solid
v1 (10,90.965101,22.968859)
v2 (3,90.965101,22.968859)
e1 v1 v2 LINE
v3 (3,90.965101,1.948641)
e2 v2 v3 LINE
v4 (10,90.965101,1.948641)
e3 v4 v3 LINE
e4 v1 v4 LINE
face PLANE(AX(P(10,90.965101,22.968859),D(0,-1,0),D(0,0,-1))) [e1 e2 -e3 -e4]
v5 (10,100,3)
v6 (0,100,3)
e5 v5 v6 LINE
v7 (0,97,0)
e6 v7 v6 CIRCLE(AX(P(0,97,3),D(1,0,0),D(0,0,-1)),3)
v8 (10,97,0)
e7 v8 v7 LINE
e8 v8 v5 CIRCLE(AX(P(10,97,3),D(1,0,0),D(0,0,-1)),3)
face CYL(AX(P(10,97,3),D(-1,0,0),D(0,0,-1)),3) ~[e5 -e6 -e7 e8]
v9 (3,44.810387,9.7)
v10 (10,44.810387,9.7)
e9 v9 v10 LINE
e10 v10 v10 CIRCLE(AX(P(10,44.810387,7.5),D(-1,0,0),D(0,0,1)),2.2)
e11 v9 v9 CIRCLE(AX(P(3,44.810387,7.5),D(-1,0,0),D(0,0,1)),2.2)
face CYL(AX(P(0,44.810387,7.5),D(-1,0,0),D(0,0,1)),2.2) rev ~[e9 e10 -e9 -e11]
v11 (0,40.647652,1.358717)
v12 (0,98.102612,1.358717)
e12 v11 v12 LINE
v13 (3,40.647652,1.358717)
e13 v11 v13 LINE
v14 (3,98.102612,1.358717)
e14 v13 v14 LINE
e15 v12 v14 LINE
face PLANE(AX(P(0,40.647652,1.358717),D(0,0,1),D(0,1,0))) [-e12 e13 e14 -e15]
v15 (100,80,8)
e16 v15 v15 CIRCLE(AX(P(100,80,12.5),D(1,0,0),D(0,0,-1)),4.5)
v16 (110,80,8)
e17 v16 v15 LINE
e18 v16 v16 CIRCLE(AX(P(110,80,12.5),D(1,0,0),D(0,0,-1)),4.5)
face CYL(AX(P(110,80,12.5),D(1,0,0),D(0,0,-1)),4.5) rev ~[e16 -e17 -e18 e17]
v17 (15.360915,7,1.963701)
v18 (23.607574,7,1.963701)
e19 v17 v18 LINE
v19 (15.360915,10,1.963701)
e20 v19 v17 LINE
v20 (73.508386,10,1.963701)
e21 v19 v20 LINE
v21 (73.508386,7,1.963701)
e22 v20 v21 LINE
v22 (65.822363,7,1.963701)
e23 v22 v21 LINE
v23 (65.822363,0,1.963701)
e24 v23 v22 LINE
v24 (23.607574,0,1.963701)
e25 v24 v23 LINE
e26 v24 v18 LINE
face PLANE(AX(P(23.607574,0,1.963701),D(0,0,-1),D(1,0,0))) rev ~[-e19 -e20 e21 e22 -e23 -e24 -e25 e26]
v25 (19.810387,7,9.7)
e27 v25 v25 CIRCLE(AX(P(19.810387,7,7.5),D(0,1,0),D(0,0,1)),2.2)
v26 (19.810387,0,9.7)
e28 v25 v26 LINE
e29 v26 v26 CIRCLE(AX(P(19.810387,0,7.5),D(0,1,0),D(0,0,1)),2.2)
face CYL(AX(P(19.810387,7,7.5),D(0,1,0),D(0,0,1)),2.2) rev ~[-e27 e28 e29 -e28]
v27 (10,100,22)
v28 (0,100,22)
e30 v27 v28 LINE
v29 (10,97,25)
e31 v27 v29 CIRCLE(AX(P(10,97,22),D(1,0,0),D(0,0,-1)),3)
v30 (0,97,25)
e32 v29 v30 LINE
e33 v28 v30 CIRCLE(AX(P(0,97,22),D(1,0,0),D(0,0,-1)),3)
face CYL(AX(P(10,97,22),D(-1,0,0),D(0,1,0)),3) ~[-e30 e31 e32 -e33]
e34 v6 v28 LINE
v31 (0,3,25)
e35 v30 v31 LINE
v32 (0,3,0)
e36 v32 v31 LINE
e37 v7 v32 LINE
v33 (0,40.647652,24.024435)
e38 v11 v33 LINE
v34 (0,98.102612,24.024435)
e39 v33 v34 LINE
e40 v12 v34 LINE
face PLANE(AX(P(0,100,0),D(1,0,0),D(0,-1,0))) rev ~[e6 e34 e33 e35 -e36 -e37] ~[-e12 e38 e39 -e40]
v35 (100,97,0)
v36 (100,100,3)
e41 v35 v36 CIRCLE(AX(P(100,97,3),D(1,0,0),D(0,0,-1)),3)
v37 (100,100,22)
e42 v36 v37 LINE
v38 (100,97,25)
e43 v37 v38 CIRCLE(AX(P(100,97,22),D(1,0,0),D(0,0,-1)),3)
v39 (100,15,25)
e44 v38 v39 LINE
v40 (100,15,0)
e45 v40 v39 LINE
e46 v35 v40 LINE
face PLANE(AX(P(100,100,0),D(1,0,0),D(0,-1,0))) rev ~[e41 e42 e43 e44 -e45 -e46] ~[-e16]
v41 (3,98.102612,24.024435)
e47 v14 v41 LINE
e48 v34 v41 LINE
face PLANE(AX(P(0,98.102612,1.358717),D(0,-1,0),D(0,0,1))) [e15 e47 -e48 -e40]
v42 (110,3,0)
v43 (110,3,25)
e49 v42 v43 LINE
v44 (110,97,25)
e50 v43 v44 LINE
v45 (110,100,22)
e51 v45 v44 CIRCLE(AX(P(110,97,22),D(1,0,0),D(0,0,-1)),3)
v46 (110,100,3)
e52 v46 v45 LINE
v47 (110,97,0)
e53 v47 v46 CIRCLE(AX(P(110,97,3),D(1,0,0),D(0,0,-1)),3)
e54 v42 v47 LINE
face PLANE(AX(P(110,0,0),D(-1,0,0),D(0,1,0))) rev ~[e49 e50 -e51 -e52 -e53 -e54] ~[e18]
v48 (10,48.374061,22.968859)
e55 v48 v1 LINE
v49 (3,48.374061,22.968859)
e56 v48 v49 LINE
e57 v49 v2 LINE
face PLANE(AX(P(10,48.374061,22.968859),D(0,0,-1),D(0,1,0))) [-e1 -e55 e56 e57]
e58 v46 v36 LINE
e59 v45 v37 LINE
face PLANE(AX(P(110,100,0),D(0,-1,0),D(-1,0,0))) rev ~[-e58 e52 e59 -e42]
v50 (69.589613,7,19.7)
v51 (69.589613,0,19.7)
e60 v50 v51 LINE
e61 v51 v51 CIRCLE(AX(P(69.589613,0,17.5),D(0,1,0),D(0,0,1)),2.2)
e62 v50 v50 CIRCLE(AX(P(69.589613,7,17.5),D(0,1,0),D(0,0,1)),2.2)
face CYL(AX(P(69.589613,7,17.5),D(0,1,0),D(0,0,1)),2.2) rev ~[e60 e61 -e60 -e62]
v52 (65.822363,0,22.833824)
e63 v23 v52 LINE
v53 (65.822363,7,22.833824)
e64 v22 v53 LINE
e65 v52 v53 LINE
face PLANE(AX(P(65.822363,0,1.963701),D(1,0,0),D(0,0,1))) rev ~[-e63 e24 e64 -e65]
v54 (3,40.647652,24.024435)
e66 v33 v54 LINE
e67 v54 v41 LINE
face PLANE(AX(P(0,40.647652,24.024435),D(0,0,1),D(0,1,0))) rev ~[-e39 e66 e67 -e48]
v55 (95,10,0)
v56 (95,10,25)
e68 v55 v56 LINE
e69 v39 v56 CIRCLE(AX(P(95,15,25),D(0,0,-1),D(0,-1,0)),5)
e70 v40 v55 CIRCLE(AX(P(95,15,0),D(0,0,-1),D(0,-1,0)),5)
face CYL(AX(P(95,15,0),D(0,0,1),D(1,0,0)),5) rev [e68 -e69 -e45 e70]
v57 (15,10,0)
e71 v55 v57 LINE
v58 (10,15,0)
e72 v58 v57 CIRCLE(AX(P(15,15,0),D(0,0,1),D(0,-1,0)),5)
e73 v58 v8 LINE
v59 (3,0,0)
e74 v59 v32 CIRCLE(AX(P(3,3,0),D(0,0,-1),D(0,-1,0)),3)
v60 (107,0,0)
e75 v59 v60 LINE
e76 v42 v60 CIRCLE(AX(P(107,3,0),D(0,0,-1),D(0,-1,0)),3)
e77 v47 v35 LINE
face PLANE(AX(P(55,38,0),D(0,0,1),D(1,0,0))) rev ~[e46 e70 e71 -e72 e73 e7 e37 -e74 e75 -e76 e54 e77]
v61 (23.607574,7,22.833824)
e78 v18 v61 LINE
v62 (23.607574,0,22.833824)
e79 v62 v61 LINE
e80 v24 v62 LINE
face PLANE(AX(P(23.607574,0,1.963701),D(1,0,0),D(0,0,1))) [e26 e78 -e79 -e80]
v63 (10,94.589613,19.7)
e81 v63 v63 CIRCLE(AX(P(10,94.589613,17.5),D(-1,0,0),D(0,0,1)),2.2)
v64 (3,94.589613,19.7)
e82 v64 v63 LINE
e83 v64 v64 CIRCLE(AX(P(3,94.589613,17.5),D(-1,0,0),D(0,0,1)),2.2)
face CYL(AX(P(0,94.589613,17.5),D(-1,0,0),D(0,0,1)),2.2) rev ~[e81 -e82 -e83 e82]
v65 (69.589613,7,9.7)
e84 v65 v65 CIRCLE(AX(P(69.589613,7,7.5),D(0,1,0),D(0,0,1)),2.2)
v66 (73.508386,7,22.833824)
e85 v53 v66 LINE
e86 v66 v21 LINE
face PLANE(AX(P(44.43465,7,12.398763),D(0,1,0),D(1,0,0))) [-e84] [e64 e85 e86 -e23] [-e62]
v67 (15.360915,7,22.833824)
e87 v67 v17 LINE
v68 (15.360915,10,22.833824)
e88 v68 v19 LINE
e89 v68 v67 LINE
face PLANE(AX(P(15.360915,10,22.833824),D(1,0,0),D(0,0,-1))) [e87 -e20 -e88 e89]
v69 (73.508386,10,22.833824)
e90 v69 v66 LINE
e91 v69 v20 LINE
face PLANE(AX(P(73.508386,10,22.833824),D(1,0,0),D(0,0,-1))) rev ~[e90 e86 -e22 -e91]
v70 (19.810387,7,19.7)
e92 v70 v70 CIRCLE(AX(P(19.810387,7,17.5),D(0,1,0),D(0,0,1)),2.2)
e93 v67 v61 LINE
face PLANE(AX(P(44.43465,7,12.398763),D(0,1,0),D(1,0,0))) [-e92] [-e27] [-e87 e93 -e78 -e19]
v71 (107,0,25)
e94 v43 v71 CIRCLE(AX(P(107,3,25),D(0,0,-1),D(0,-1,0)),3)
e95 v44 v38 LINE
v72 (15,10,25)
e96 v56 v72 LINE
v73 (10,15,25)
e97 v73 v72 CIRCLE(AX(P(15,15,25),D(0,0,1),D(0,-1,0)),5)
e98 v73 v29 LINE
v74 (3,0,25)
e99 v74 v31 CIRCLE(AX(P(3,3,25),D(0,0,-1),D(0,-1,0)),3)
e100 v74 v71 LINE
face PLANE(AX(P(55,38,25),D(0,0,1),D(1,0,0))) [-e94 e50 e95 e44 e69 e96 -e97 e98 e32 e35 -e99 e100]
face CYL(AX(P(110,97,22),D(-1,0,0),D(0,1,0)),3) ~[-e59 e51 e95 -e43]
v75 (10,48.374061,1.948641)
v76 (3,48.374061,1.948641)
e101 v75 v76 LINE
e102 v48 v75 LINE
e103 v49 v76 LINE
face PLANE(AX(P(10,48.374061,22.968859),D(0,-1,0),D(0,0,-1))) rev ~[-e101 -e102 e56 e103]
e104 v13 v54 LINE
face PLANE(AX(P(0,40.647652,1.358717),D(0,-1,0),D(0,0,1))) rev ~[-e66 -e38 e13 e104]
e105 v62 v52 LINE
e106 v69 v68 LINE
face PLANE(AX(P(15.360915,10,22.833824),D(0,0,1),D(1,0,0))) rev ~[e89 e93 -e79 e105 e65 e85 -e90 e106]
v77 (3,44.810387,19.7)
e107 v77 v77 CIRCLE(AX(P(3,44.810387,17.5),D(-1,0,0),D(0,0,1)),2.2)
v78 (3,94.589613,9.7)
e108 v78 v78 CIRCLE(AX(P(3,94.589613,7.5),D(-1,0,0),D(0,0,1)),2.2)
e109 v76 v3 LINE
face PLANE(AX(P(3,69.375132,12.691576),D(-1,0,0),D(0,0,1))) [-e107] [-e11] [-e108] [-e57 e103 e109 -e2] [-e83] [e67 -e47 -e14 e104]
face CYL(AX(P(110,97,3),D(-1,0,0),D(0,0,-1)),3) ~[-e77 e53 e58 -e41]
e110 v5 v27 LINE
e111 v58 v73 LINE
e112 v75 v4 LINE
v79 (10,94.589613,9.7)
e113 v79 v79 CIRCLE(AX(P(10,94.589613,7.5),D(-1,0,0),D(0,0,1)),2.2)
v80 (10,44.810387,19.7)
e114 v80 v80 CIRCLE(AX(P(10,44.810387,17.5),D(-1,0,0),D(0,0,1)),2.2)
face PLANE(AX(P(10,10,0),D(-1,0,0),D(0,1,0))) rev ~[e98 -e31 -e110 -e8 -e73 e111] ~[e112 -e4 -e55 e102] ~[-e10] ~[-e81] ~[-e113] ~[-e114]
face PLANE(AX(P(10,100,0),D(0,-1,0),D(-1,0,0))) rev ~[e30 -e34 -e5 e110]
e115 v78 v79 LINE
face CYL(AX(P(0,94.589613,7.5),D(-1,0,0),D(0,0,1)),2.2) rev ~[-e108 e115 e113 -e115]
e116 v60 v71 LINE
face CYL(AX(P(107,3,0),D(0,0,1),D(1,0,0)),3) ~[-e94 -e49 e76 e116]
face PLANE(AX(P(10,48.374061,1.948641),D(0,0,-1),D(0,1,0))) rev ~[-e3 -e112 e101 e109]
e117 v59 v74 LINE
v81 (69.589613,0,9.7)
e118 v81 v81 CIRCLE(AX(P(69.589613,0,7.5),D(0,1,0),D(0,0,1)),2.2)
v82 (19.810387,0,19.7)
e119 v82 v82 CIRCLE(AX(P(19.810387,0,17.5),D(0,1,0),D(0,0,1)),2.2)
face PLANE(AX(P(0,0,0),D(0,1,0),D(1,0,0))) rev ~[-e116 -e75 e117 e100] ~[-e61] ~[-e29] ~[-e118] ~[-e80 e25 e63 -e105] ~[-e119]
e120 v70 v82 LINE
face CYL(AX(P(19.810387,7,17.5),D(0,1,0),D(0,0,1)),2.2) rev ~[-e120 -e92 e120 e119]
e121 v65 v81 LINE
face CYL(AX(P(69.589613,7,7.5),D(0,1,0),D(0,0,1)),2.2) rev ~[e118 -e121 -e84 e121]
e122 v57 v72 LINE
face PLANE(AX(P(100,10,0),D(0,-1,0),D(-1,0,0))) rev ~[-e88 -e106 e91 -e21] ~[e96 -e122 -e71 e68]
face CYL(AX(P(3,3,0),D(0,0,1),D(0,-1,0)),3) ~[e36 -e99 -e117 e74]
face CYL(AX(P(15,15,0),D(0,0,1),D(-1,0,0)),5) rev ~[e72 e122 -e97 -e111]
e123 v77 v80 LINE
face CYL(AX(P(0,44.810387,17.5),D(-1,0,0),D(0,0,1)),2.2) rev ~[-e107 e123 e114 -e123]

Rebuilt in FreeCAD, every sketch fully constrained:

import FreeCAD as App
import Part
import Sketcher

V = App.Vector


def edges_at(feature, points):
    """Names of the edges that pass closest to the given points."""
    edges = feature.Shape.Edges
    near = lambda p: min(range(len(edges)), key=lambda i: edges[i].distToShape(Part.Vertex(*p))[0])
    return sorted({f"Edge{near(p) + 1}" for p in points})


def add_polygon(sketch, points):
    """Adds a closed chain of lines whose ends are joined by coincident constraints."""
    first, n = sketch.GeometryCount, len(points)
    for a, b in zip(points, points[1:] + points[:1]):
        sketch.addGeometry(Part.LineSegment(App.Vector(*a, 0), App.Vector(*b, 0)), False)
    for i in range(n):
        sketch.addConstraint(Sketcher.Constraint("Coincident", first + i, 2, first + (i + 1) % n, 1))

doc = App.newDocument("Part")
body = doc.addObject("PartDesign::Body", "Body")

# Sketch on XY plane
sketch1 = body.newObject("Sketcher::SketchObject", "Sketch")
sketch1.AttachmentSupport = (doc.getObject("XY_Plane"), [""])
sketch1.MapMode = "FlatFace"
add_polygon(sketch1, [(0, 100), (0, 0), (110, 0), (110, 100), (100, 100), (100, 10), (10, 10), (10, 100)])  # lines 0-7
sketch1.addConstraint([
    Sketcher.Constraint("Vertical", 0),
    Sketcher.Constraint("Horizontal", 1),
    Sketcher.Constraint("Vertical", 2),
    Sketcher.Constraint("Horizontal", 3),
    Sketcher.Constraint("Vertical", 4),
    Sketcher.Constraint("Horizontal", 5),
    Sketcher.Constraint("Vertical", 6),
    Sketcher.Constraint("Horizontal", 7),
    Sketcher.Constraint("Coincident", 0, 2, -1, 1),
    Sketcher.Constraint("Horizontal", 3, 2, 6, 2),
    Sketcher.Constraint("Equal", 3, 7),
    Sketcher.Constraint("Equal", 5, 4),
    Sketcher.Constraint("DistanceX", 1, 1, 1, 2, 110.0),
    Sketcher.Constraint("DistanceX", 3, 2, 3, 1, 10.0),
    Sketcher.Constraint("DistanceY", 0, 2, 0, 1, 100.0),
])
pad1 = body.newObject("PartDesign::Pad", "Pad")
pad1.Profile = sketch1
pad1.Length = 25

# Sketch on YZ plane
sketch2 = body.newObject("Sketcher::SketchObject", "Sketch001")
sketch2.AttachmentSupport = (doc.getObject("YZ_Plane"), [""])
sketch2.MapMode = "FlatFace"
sketch2.addGeometry([
    Part.Circle(V(94.6, 7.5, 0), V(0, 0, 1), 2.2),
    Part.Circle(V(94.6, 17.5, 0), V(0, 0, 1), 2.2),
    Part.Circle(V(44.8, 7.5, 0), V(0, 0, 1), 2.2),
    Part.Circle(V(44.8, 17.5, 0), V(0, 0, 1), 2.2),
], False)
sketch2.addConstraint([
    Sketcher.Constraint("Equal", 0, 1),
    Sketcher.Constraint("Equal", 1, 2),
    Sketcher.Constraint("Equal", 2, 3),
    Sketcher.Constraint("Horizontal", 0, 3, 2, 3),
    Sketcher.Constraint("Horizontal", 1, 3, 3, 3),
    Sketcher.Constraint("Vertical", 0, 3, 1, 3),
    Sketcher.Constraint("Vertical", 2, 3, 3, 3),
    Sketcher.Constraint("Diameter", 0, 4.4),
    Sketcher.Constraint("DistanceY", 0, 3, 1, 3, 10.0),
    Sketcher.Constraint("DistanceY", -1, 1, 0, 3, 7.5),
    Sketcher.Constraint("DistanceX", -1, 1, 0, 3, 94.589613),
    Sketcher.Constraint("DistanceX", -1, 1, 2, 3, 44.810387),
])
pocket1 = body.newObject("PartDesign::Pocket", "Pocket")
pocket1.Profile = sketch2
pocket1.Length = 10
pocket1.Reversed = True

# Sketch on YZ plane
sketch3 = body.newObject("Sketcher::SketchObject", "Sketch002")
sketch3.AttachmentSupport = (doc.getObject("YZ_Plane"), [""])
sketch3.MapMode = "FlatFace"
sketch3.AttachmentOffset = App.Placement(V(0, 0, 10), App.Rotation())
add_polygon(sketch3, [(91, 23), (48, 23), (48, 2), (91, 2)])  # lines 0-3
sketch3.addConstraint([
    Sketcher.Constraint("Horizontal", 0),
    Sketcher.Constraint("Vertical", 1),
    Sketcher.Constraint("Horizontal", 2),
    Sketcher.Constraint("Vertical", 3),
    Sketcher.Constraint("DistanceX", 0, 2, 0, 1, 42.59104),
    Sketcher.Constraint("DistanceX", -1, 1, 2, 2, 90.965101),
    Sketcher.Constraint("DistanceY", 1, 2, 1, 1, 21.020218),
    Sketcher.Constraint("DistanceY", -1, 1, 0, 2, 22.968859),
])
pocket2 = body.newObject("PartDesign::Pocket", "Pocket001")
pocket2.Profile = sketch3
pocket2.Length = 14

# Sketch on YZ plane
sketch4 = body.newObject("Sketcher::SketchObject", "Sketch003")
sketch4.AttachmentSupport = (doc.getObject("YZ_Plane"), [""])
sketch4.MapMode = "FlatFace"
add_polygon(sketch4, [(98, 1), (41, 1), (41, 24), (98, 24)])  # lines 0-3
sketch4.addConstraint([
    Sketcher.Constraint("Horizontal", 0),
    Sketcher.Constraint("Vertical", 1),
    Sketcher.Constraint("Horizontal", 2),
    Sketcher.Constraint("Vertical", 3),
    Sketcher.Constraint("DistanceX", 0, 2, 0, 1, 57.454959),
    Sketcher.Constraint("DistanceY", 1, 1, 1, 2, 22.665718),
    Sketcher.Constraint("DistanceX", -1, 1, 2, 2, 98.102612),
    Sketcher.Constraint("DistanceY", -1, 1, 0, 2, 1.358717),
])
pocket3 = body.newObject("PartDesign::Pocket", "Pocket002")
pocket3.Profile = sketch4
pocket3.Length = 3
pocket3.Reversed = True
doc.recompute()

fillet = body.newObject("PartDesign::Fillet", "Fillet")
fillet.Base = (pocket3, edges_at(pocket3, [(10, 10, 12.5), (100, 10, 12.5)]))
fillet.Radius = 5
doc.recompute()

fillet2 = body.newObject("PartDesign::Fillet", "Fillet001")
fillet2.Base = (fillet, edges_at(fillet, [
    (5, 100, 0),
    (105, 100, 0),
    (110, 0, 12.5),
    (0, 0, 12.5),
    (5, 100, 25),
    (105, 100, 25),
]))
fillet2.Radius = 3

# Sketch on YZ plane
sketch5 = body.newObject("Sketcher::SketchObject", "Sketch004")
sketch5.AttachmentSupport = (doc.getObject("YZ_Plane"), [""])
sketch5.MapMode = "FlatFace"
sketch5.AttachmentOffset = App.Placement(V(0, 0, 110), App.Rotation())
sketch5.addGeometry(Part.Circle(V(80, 12.5, 0), V(0, 0, 1), 4.5), False)
sketch5.addConstraint([
    Sketcher.Constraint("Diameter", 0, 9.0),
    Sketcher.Constraint("DistanceX", -1, 1, 0, 3, 80.0),
    Sketcher.Constraint("DistanceY", -1, 1, 0, 3, 12.5),
])
pocket4 = body.newObject("PartDesign::Pocket", "Pocket003")
pocket4.Profile = sketch5
pocket4.Length = 10

# Sketch on XZ plane
sketch6 = body.newObject("Sketcher::SketchObject", "Sketch005")
sketch6.AttachmentSupport = (doc.getObject("XZ_Plane"), [""])
sketch6.MapMode = "FlatFace"
add_polygon(sketch6, [(24, 23), (24, 2), (66, 2), (66, 23)])  # lines 0-3
sketch6.addConstraint([
    Sketcher.Constraint("Vertical", 0),
    Sketcher.Constraint("Horizontal", 1),
    Sketcher.Constraint("Vertical", 2),
    Sketcher.Constraint("Horizontal", 3),
    Sketcher.Constraint("DistanceX", 1, 1, 1, 2, 42.21479),
    Sketcher.Constraint("DistanceY", -1, 1, 0, 2, 1.963701),
    Sketcher.Constraint("DistanceY", 0, 2, 0, 1, 20.870122),
    Sketcher.Constraint("DistanceX", -1, 1, 0, 2, 23.607574),
])
pocket5 = body.newObject("PartDesign::Pocket", "Pocket004")
pocket5.Profile = sketch6
pocket5.Length = 21

# Sketch on XZ plane
sketch7 = body.newObject("Sketcher::SketchObject", "Sketch006")
sketch7.AttachmentSupport = (doc.getObject("XZ_Plane"), [""])
sketch7.MapMode = "FlatFace"
sketch7.AttachmentOffset = App.Placement(V(0, 0, -10), App.Rotation())
add_polygon(sketch7, [(15, 2), (15, 23), (74, 23), (74, 2)])  # lines 0-3
sketch7.addConstraint([
    Sketcher.Constraint("Vertical", 0),
    Sketcher.Constraint("Horizontal", 1),
    Sketcher.Constraint("Vertical", 2),
    Sketcher.Constraint("Horizontal", 3),
    Sketcher.Constraint("DistanceX", 1, 1, 1, 2, 58.147471),
    Sketcher.Constraint("DistanceY", -1, 1, 2, 2, 1.963701),
    Sketcher.Constraint("DistanceY", 0, 1, 0, 2, 20.870122),
    Sketcher.Constraint("DistanceX", -1, 1, 0, 2, 15.360915),
])
pocket6 = body.newObject("PartDesign::Pocket", "Pocket005")
pocket6.Profile = sketch7
pocket6.Length = 3
pocket6.Reversed = True

# Sketch on XZ plane
sketch8 = body.newObject("Sketcher::SketchObject", "Sketch007")
sketch8.AttachmentSupport = (doc.getObject("XZ_Plane"), [""])
sketch8.MapMode = "FlatFace"
sketch8.AttachmentOffset = App.Placement(V(0, 0, -7), App.Rotation())
sketch8.addGeometry([
    Part.Circle(V(69.6, 7.5, 0), V(0, 0, 1), 2.2),
    Part.Circle(V(69.6, 17.5, 0), V(0, 0, 1), 2.2),
    Part.Circle(V(19.8, 7.5, 0), V(0, 0, 1), 2.2),
    Part.Circle(V(19.8, 17.5, 0), V(0, 0, 1), 2.2),
], False)
sketch8.addConstraint([
    Sketcher.Constraint("Equal", 0, 1),
    Sketcher.Constraint("Equal", 1, 2),
    Sketcher.Constraint("Equal", 2, 3),
    Sketcher.Constraint("Horizontal", 0, 3, 2, 3),
    Sketcher.Constraint("Horizontal", 1, 3, 3, 3),
    Sketcher.Constraint("Vertical", 0, 3, 1, 3),
    Sketcher.Constraint("Vertical", 2, 3, 3, 3),
    Sketcher.Constraint("Diameter", 0, 4.4),
    Sketcher.Constraint("DistanceY", 0, 3, 1, 3, 10.0),
    Sketcher.Constraint("DistanceY", -1, 1, 0, 3, 7.5),
    Sketcher.Constraint("DistanceX", -1, 1, 0, 3, 69.589613),
    Sketcher.Constraint("DistanceX", -1, 1, 2, 3, 19.810387),
])
pocket7 = body.newObject("PartDesign::Pocket", "Pocket006")
pocket7.Profile = sketch8
pocket7.Length = 23
pocket7.Reversed = True

doc.recompute()
